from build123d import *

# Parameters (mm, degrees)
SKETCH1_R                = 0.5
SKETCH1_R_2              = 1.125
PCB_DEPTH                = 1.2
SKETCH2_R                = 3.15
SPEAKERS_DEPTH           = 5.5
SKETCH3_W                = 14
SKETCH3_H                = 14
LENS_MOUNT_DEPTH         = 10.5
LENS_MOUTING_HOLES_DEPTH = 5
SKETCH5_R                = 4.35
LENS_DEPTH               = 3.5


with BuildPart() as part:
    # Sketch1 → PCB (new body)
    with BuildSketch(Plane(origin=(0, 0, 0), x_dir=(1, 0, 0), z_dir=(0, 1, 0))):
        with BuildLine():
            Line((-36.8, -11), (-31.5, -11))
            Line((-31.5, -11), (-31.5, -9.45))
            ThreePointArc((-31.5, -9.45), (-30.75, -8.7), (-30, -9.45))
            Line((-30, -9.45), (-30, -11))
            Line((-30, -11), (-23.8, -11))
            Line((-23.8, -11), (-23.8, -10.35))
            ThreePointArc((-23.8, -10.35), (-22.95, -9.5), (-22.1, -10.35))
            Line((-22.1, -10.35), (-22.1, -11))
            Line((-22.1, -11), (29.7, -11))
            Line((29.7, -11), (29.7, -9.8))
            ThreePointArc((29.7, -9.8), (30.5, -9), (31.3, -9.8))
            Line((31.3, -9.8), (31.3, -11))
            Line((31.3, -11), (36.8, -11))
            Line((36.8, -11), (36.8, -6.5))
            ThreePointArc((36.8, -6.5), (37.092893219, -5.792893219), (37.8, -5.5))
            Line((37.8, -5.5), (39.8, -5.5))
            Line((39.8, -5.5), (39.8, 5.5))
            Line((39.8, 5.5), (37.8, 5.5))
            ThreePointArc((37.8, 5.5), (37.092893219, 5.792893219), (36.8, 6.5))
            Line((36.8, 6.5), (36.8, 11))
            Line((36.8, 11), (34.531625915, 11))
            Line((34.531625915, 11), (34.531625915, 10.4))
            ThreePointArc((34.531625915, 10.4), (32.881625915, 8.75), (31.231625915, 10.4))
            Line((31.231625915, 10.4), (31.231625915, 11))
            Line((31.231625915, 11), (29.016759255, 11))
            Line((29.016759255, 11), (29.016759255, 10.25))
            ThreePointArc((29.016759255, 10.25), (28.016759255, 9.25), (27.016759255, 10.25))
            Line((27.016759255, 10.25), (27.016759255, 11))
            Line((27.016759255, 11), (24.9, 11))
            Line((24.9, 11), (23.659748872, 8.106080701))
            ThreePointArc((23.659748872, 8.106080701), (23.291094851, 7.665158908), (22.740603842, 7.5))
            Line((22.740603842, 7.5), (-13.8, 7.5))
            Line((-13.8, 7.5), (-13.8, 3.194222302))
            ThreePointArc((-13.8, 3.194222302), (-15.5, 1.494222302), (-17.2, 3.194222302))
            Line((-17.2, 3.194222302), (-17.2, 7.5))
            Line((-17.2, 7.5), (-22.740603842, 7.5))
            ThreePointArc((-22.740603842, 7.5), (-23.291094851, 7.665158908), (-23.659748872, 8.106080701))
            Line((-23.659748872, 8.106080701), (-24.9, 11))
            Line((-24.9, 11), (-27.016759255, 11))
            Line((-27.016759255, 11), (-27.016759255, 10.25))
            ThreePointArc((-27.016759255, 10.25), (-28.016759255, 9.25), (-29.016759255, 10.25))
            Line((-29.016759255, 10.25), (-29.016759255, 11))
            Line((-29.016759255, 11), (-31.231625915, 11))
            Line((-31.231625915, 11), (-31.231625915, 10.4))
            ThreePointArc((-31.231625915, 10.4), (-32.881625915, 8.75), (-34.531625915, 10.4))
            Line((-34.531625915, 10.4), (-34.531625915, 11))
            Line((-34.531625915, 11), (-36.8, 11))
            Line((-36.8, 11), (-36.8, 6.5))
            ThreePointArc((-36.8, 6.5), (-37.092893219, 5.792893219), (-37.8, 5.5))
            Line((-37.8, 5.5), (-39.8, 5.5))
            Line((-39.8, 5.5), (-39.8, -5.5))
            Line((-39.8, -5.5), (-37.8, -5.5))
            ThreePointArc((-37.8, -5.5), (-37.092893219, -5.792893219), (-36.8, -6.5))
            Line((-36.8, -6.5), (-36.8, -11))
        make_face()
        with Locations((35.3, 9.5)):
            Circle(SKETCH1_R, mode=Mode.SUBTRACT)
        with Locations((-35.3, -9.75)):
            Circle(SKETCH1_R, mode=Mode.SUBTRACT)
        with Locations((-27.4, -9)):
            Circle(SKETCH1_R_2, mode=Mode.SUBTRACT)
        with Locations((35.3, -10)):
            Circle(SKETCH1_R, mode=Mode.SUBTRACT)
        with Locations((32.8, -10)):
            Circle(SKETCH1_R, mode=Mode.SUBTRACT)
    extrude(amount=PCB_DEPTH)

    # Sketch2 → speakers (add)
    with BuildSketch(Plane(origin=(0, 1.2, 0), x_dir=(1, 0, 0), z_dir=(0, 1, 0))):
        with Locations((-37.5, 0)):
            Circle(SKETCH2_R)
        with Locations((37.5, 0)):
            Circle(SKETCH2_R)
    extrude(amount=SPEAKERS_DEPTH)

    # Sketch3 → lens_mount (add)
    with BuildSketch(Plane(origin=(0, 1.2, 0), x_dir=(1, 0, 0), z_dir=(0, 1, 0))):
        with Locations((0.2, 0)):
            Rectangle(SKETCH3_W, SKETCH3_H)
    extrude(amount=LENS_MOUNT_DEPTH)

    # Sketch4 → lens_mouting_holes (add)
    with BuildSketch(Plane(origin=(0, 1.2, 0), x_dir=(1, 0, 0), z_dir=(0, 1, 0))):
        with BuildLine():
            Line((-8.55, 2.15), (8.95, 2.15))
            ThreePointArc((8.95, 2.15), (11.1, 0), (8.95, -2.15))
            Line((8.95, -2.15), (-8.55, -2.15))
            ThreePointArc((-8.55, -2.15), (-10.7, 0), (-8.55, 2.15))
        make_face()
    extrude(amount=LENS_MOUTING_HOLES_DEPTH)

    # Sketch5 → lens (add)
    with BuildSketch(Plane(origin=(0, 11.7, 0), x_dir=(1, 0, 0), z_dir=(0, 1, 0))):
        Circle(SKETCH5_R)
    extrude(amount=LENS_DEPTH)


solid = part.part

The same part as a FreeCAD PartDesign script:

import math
import FreeCAD as App
import Part
import Sketcher

V = App.Vector

doc = App.newDocument("Part")
body = doc.addObject("PartDesign::Body", "Body")

# Sketch on XZ plane
sketch1 = body.newObject("Sketcher::SketchObject", "Sketch")
sketch1.AttachmentSupport = (doc.getObject("XZ_Plane"), [""])
sketch1.MapMode = "FlatFace"
sketch1.addGeometry([
    Part.LineSegment(V(-36.8, 11, 0), V(-31.5, 11, 0)),  # 0
    Part.LineSegment(V(-31.5, 11, 0), V(-31.5, 9.45, 0)),  # 1
    Part.ArcOfCircle(Part.Circle(V(-30.75, 9.45, 0), V(0, 0, 1), 0.75), math.radians(180), math.radians(360)),  # 2
    Part.LineSegment(V(-30, 9.45, 0), V(-30, 11, 0)),  # 3
    Part.LineSegment(V(-30, 11, 0), V(-23.8, 11, 0)),  # 4
    Part.LineSegment(V(-23.8, 11, 0), V(-23.8, 10.35, 0)),  # 5
    Part.ArcOfCircle(Part.Circle(V(-22.95, 10.35, 0), V(0, 0, 1), 0.85), math.radians(180), math.radians(360)),  # 6
    Part.LineSegment(V(-22.1, 10.35, 0), V(-22.1, 11, 0)),  # 7
    Part.LineSegment(V(-22.1, 11, 0), V(29.7, 11, 0)),  # 8
    Part.LineSegment(V(29.7, 11, 0), V(29.7, 9.8, 0)),  # 9
    Part.ArcOfCircle(Part.Circle(V(30.5, 9.8, 0), V(0, 0, 1), 0.8), math.radians(180), math.radians(360)),  # 10
    Part.LineSegment(V(31.3, 9.8, 0), V(31.3, 11, 0)),  # 11
    Part.LineSegment(V(31.3, 11, 0), V(36.8, 11, 0)),  # 12
    Part.LineSegment(V(36.8, 11, 0), V(36.8, 6.5, 0)),  # 13
    Part.ArcOfCircle(Part.Circle(V(37.8, 6.5, 0), V(0, 0, 1), 1), math.radians(-180), math.radians(-90)),  # 14
    Part.LineSegment(V(37.8, 5.5, 0), V(39.8, 5.5, 0)),  # 15
    Part.LineSegment(V(39.8, 5.5, 0), V(39.8, -5.5, 0)),  # 16
    Part.LineSegment(V(39.8, -5.5, 0), V(37.8, -5.5, 0)),  # 17
    Part.ArcOfCircle(Part.Circle(V(37.8, -6.5, 0), V(0, 0, 1), 1), math.radians(90), math.radians(180)),  # 18
    Part.LineSegment(V(36.8, -6.5, 0), V(36.8, -11, 0)),  # 19
    Part.LineSegment(V(36.8, -11, 0), V(34.531626, -11, 0)),  # 20
    Part.LineSegment(V(34.531626, -11, 0), V(34.531626, -10.4, 0)),  # 21
    Part.ArcOfCircle(Part.Circle(V(32.881626, -10.4, 0), V(0, 0, 1), 1.65), math.radians(0), math.radians(180)),  # 22
    Part.LineSegment(V(31.231626, -10.4, 0), V(31.231626, -11, 0)),  # 23
    Part.LineSegment(V(31.231626, -11, 0), V(29.016759, -11, 0)),  # 24
    Part.LineSegment(V(29.016759, -11, 0), V(29.016759, -10.25, 0)),  # 25
    Part.ArcOfCircle(Part.Circle(V(28.016759, -10.25, 0), V(0, 0, 1), 1), math.radians(0), math.radians(180)),  # 26
    Part.LineSegment(V(27.016759, -10.25, 0), V(27.016759, -11, 0)),  # 27
    Part.LineSegment(V(27.016759, -11, 0), V(24.9, -11, 0)),  # 28
    Part.LineSegment(V(24.9, -11, 0), V(23.659749, -8.106081, 0)),  # 29
    Part.ArcOfCircle(Part.Circle(V(22.740604, -8.5, 0), V(0, 0, 1), 1), math.radians(23.198591), math.radians(90)),  # 30
    Part.LineSegment(V(22.740604, -7.5, 0), V(-13.8, -7.5, 0)),  # 31
    Part.LineSegment(V(-13.8, -7.5, 0), V(-13.8, -3.194222, 0)),  # 32
    Part.ArcOfCircle(Part.Circle(V(-15.5, -3.194222, 0), V(0, 0, 1), 1.7), math.radians(0), math.radians(180)),  # 33
    Part.LineSegment(V(-17.2, -3.194222, 0), V(-17.2, -7.5, 0)),  # 34
    Part.LineSegment(V(-17.2, -7.5, 0), V(-22.740604, -7.5, 0)),  # 35
    Part.ArcOfCircle(Part.Circle(V(-22.740604, -8.5, 0), V(0, 0, 1), 1), math.radians(90), math.radians(156.801409)),  # 36
    Part.LineSegment(V(-23.659749, -8.106081, 0), V(-24.9, -11, 0)),  # 37
    Part.LineSegment(V(-24.9, -11, 0), V(-27.016759, -11, 0)),  # 38
    Part.LineSegment(V(-27.016759, -11, 0), V(-27.016759, -10.25, 0)),  # 39
    Part.ArcOfCircle(Part.Circle(V(-28.016759, -10.25, 0), V(0, 0, 1), 1), math.radians(0), math.radians(180)),  # 40
    Part.LineSegment(V(-29.016759, -10.25, 0), V(-29.016759, -11, 0)),  # 41
    Part.LineSegment(V(-29.016759, -11, 0), V(-31.231626, -11, 0)),  # 42
    Part.LineSegment(V(-31.231626, -11, 0), V(-31.231626, -10.4, 0)),  # 43
    Part.ArcOfCircle(Part.Circle(V(-32.881626, -10.4, 0), V(0, 0, 1), 1.65), math.radians(0), math.radians(180)),  # 44
    Part.LineSegment(V(-34.531626, -10.4, 0), V(-34.531626, -11, 0)),  # 45
    Part.LineSegment(V(-34.531626, -11, 0), V(-36.8, -11, 0)),  # 46
    Part.LineSegment(V(-36.8, -11, 0), V(-36.8, -6.5, 0)),  # 47
    Part.ArcOfCircle(Part.Circle(V(-37.8, -6.5, 0), V(0, 0, 1), 1), math.radians(0), math.radians(90)),  # 48
    Part.LineSegment(V(-37.8, -5.5, 0), V(-39.8, -5.5, 0)),  # 49
    Part.LineSegment(V(-39.8, -5.5, 0), V(-39.8, 5.5, 0)),  # 50
    Part.LineSegment(V(-39.8, 5.5, 0), V(-37.8, 5.5, 0)),  # 51
    Part.ArcOfCircle(Part.Circle(V(-37.8, 6.5, 0), V(0, 0, 1), 1), math.radians(-90), math.radians(0)),  # 52
    Part.LineSegment(V(-36.8, 6.5, 0), V(-36.8, 11, 0)),  # 53
    Part.Circle(V(-35.3, 9.75, 0), V(0, 0, 1), 0.5),  # 54
    Part.Circle(V(-27.4, 9, 0), V(0, 0, 1), 1.125),  # 55
    Part.Circle(V(32.8, 10, 0), V(0, 0, 1), 0.5),  # 56
    Part.Circle(V(35.3, 10, 0), V(0, 0, 1), 0.5),  # 57
    Part.Circle(V(35.3, -9.5, 0), V(0, 0, 1), 0.5),  # 58
], False)
sketch1.addConstraint([
    Sketcher.Constraint("Coincident", 0, 2, 1, 1),
    Sketcher.Constraint("Tangent", 1, 2, 2, 1),
    Sketcher.Constraint("Tangent", 2, 2, 3, 1),
    Sketcher.Constraint("Coincident", 3, 2, 4, 1),
    Sketcher.Constraint("Coincident", 4, 2, 5, 1),
    Sketcher.Constraint("Tangent", 5, 2, 6, 1),
    Sketcher.Constraint("Tangent", 6, 2, 7, 1),
    Sketcher.Constraint("Coincident", 7, 2, 8, 1),
    Sketcher.Constraint("Coincident", 8, 2, 9, 1),
    Sketcher.Constraint("Tangent", 9, 2, 10, 1),
    Sketcher.Constraint("Tangent", 10, 2, 11, 1),
    Sketcher.Constraint("Coincident", 11, 2, 12, 1),
    Sketcher.Constraint("Coincident", 12, 2, 13, 1),
    Sketcher.Constraint("Tangent", 13, 2, 14, 1),
    Sketcher.Constraint("Tangent", 14, 2, 15, 1),
    Sketcher.Constraint("Coincident", 15, 2, 16, 1),
    Sketcher.Constraint("Coincident", 16, 2, 17, 1),
    Sketcher.Constraint("Tangent", 17, 2, 18, 1),
    Sketcher.Constraint("Tangent", 18, 2, 19, 1),
    Sketcher.Constraint("Coincident", 19, 2, 20, 1),
    Sketcher.Constraint("Coincident", 20, 2, 21, 1),
    Sketcher.Constraint("Tangent", 21, 2, 22, 1),
    Sketcher.Constraint("Tangent", 22, 2, 23, 1),
    Sketcher.Constraint("Coincident", 23, 2, 24, 1),
    Sketcher.Constraint("Coincident", 24, 2, 25, 1),
    Sketcher.Constraint("Tangent", 25, 2, 26, 1),
    Sketcher.Constraint("Tangent", 26, 2, 27, 1),
    Sketcher.Constraint("Coincident", 27, 2, 28, 1),
    Sketcher.Constraint("Coincident", 28, 2, 29, 1),
    Sketcher.Constraint("Tangent", 29, 2, 30, 1),
    Sketcher.Constraint("Tangent", 30, 2, 31, 1),
    Sketcher.Constraint("Coincident", 31, 2, 32, 1),
    Sketcher.Constraint("Tangent", 32, 2, 33, 1),
    Sketcher.Constraint("Tangent", 33, 2, 34, 1),
    Sketcher.Constraint("Coincident", 34, 2, 35, 1),
    Sketcher.Constraint("Tangent", 35, 2, 36, 1),
    Sketcher.Constraint("Tangent", 36, 2, 37, 1),
    Sketcher.Constraint("Coincident", 37, 2, 38, 1),
    Sketcher.Constraint("Coincident", 38, 2, 39, 1),
    Sketcher.Constraint("Tangent", 39, 2, 40, 1),
    Sketcher.Constraint("Tangent", 40, 2, 41, 1),
    Sketcher.Constraint("Coincident", 41, 2, 42, 1),
    Sketcher.Constraint("Coincident", 42, 2, 43, 1),
    Sketcher.Constraint("Tangent", 43, 2, 44, 1),
    Sketcher.Constraint("Tangent", 44, 2, 45, 1),
    Sketcher.Constraint("Coincident", 45, 2, 46, 1),
    Sketcher.Constraint("Coincident", 46, 2, 47, 1),
    Sketcher.Constraint("Tangent", 47, 2, 48, 1),
    Sketcher.Constraint("Tangent", 48, 2, 49, 1),
    Sketcher.Constraint("Coincident", 49, 2, 50, 1),
    Sketcher.Constraint("Coincident", 50, 2, 51, 1),
    Sketcher.Constraint("Tangent", 51, 2, 52, 1),
    Sketcher.Constraint("Tangent", 52, 2, 53, 1),
    Sketcher.Constraint("Coincident", 53, 2, 0, 1),
    Sketcher.Constraint("Horizontal", 0),
    Sketcher.Constraint("Vertical", 1),
    Sketcher.Constraint("Vertical", 3),
    Sketcher.Constraint("Horizontal", 4),
    Sketcher.Constraint("Vertical", 5),
    Sketcher.Constraint("Vertical", 7),
    Sketcher.Constraint("Horizontal", 8),
    Sketcher.Constraint("Vertical", 9),
    Sketcher.Constraint("Vertical", 11),
    Sketcher.Constraint("Horizontal", 12),
    Sketcher.Constraint("Vertical", 13),
    Sketcher.Constraint("Horizontal", 15),
    Sketcher.Constraint("Vertical", 16),
    Sketcher.Constraint("Horizontal", 17),
    Sketcher.Constraint("Vertical", 19),
    Sketcher.Constraint("Horizontal", 20),
    Sketcher.Constraint("Vertical", 21),
    Sketcher.Constraint("Vertical", 23),
    Sketcher.Constraint("Horizontal", 24),
    Sketcher.Constraint("Vertical", 25),
    Sketcher.Constraint("Vertical", 27),
    Sketcher.Constraint("Horizontal", 28),
    Sketcher.Constraint("Horizontal", 31),
    Sketcher.Constraint("Vertical", 32),
    Sketcher.Constraint("Vertical", 34),
    Sketcher.Constraint("Horizontal", 35),
    Sketcher.Constraint("Horizontal", 38),
    Sketcher.Constraint("Vertical", 39),
    Sketcher.Constraint("Vertical", 41),
    Sketcher.Constraint("Horizontal", 42),
    Sketcher.Constraint("Vertical", 43),
    Sketcher.Constraint("Vertical", 45),
    Sketcher.Constraint("Horizontal", 46),
    Sketcher.Constraint("Vertical", 47),
    Sketcher.Constraint("Horizontal", 49),
    Sketcher.Constraint("Vertical", 50),
    Sketcher.Constraint("Horizontal", 51),
    Sketcher.Constraint("Vertical", 53),
    Sketcher.Constraint("Equal", 14, 18),
    Sketcher.Constraint("Equal", 18, 26),
    Sketcher.Constraint("Equal", 26, 30),
    Sketcher.Constraint("Equal", 30, 36),
    Sketcher.Constraint("Equal", 36, 40),
    Sketcher.Constraint("Equal", 22, 44),
    Sketcher.Constraint("Equal", 40, 48),
    Sketcher.Constraint("Equal", 48, 52),
    Sketcher.Constraint("Equal", 54, 56),
    Sketcher.Constraint("Equal", 56, 57),
    Sketcher.Constraint("Equal", 57, 58),
    Sketcher.Constraint("Symmetric", 14, 3, 48, 3, -1, 1),
    Sketcher.Constraint("Symmetric", 18, 3, 52, 3, -1, 1),
    Sketcher.Constraint("Symmetric", 30, 3, 36, 3, -2),
    Sketcher.Constraint("Symmetric", 26, 3, 40, 3, -2),
    Sketcher.Constraint("Symmetric", 22, 3, 44, 3, -2),
    Sketcher.Constraint("Symmetric", 18, 3, 48, 3, -2),
    Sketcher.Constraint("Symmetric", 28, 2, 37, 2, -2),
    Sketcher.Constraint("Horizontal", 56, 3, 57, 3),
    Sketcher.Constraint("Horizontal", 0, 2, 3, 2),
    Sketcher.Constraint("Horizontal", 4, 2, 7, 2),
    Sketcher.Constraint("Horizontal", 8, 2, 11, 2),
    Sketcher.Constraint("Horizontal", 20, 2, 23, 2),
    Sketcher.Constraint("Horizontal", 24, 2, 27, 2),
    Sketcher.Constraint("Horizontal", 38, 2, 41, 2),
    Sketcher.Constraint("Horizontal", 42, 2, 45, 2),
    Sketcher.Constraint("Vertical", 57, 3, 58, 3),
    Sketcher.Constraint("Equal", 17, 49),
    Sketcher.Constraint("Equal", 13, 19),
    Sketcher.Constraint("Diameter", 54, 1.0),
    Sketcher.Constraint("Radius", 14, 1.0),
    Sketcher.Constraint("Radius", 10, 0.8),
    Sketcher.Constraint("Radius", 33, 1.7),
    Sketcher.Constraint("Diameter", 55, 2.25),
    Sketcher.Constraint("DistanceX", 15, 1, 15, 2, 2.0),
    Sketcher.Constraint("DistanceY", 16, 2, 16, 1, 11.0),
    Sketcher.Constraint("Radius", 2, 0.75),
    Sketcher.Constraint("Radius", 6, 0.85),
    Sketcher.Constraint("Radius", 22, 1.65),
    Sketcher.Constraint("DistanceX", 0, 1, 0, 2, 5.3),
    Sketcher.Constraint("DistanceX", 4, 1, 4, 2, 6.2),
    Sketcher.Constraint("DistanceX", 8, 1, 8, 2, 51.8),
    Sketcher.Constraint("DistanceX", 12, 1, 12, 2, 5.5),
    Sketcher.Constraint("DistanceY", 9, 2, 9, 1, 1.2),
    Sketcher.Constraint("DistanceY", 13, 2, 13, 1, 4.5),
    Sketcher.Constraint("DistanceY", 21, 1, 21, 2, 0.6),
    Sketcher.Constraint("DistanceY", -1, 1, 55, 3, 9.0),
    Sketcher.Constraint("DistanceY", -1, 1, 56, 3, 10.0),
    Sketcher.Constraint("DistanceY", 1, 2, 1, 1, 1.55),
    Sketcher.Constraint("DistanceY", 5, 2, 5, 1, 0.65),
    Sketcher.Constraint("DistanceY", 25, 1, 25, 2, 0.75),
    Sketcher.Constraint("DistanceY", 30, 3, -1, 1, 8.5),
    Sketcher.Constraint("DistanceX", 33, 3, -1, 1, 15.5),
    Sketcher.Constraint("DistanceX", 54, 3, -1, 1, 35.3),
    Sketcher.Constraint("DistanceX", 55, 3, -1, 1, 27.4),
    Sketcher.Constraint("DistanceX", -1, 1, 56, 3, 32.8),
    Sketcher.Constraint("DistanceX", -1, 1, 57, 3, 35.3),
    Sketcher.Constraint("DistanceY", 58, 3, -1, 1, 9.5),
    Sketcher.Constraint("DistanceX", -1, 1, 28, 2, 24.9),
    Sketcher.Constraint("DistanceY", -1, 1, 54, 3, 9.75),
    Sketcher.Constraint("DistanceX", 28, 2, 28, 1, 2.116759),
    Sketcher.Constraint("Distance", 29, 3.14849),
    Sketcher.Constraint("DistanceX", 20, 2, 20, 1, 2.268374),
    Sketcher.Constraint("DistanceY", 32, 1, 32, 2, 4.305778),
])
pad1 = body.newObject("PartDesign::Pad", "Pad")
pad1.Profile = sketch1
pad1.Length = 1.2
pad1.Reversed = True

# Sketch on XZ plane
sketch2 = body.newObject("Sketcher::SketchObject", "Sketch001")
sketch2.AttachmentSupport = (doc.getObject("XZ_Plane"), [""])
sketch2.MapMode = "FlatFace"
sketch2.AttachmentOffset = App.Placement(V(0, 0, -1.2), App.Rotation())
sketch2.addGeometry([
    Part.Circle(V(-37.5, 0, 0), V(0, 0, 1), 3.15),
    Part.Circle(V(37.5, 0, 0), V(0, 0, 1), 3.15),
], False)
sketch2.addConstraint([
    Sketcher.Constraint("Equal", 0, 1),
    Sketcher.Constraint("Symmetric", 0, 3, 1, 3, -1, 1),
    Sketcher.Constraint("PointOnObject", 0, 3, -1),
    Sketcher.Constraint("Diameter", 0, 6.3),
    Sketcher.Constraint("DistanceX", 0, 3, 1, 3, 75.0),
])
pad2 = body.newObject("PartDesign::Pad", "Pad001")
pad2.Profile = sketch2
pad2.Length = 5.5
pad2.Reversed = True

# Sketch on XZ plane
sketch3 = body.newObject("Sketcher::SketchObject", "Sketch002")
sketch3.AttachmentSupport = (doc.getObject("XZ_Plane"), [""])
sketch3.MapMode = "FlatFace"
sketch3.AttachmentOffset = App.Placement(V(0, 0, -1.2), App.Rotation())
sketch3.addGeometry([
    Part.LineSegment(V(-6.8, -7, 0), V(-6.8, 7, 0)),
    Part.LineSegment(V(-6.8, 7, 0), V(7.2, 7, 0)),
    Part.LineSegment(V(7.2, 7, 0), V(7.2, -7, 0)),
    Part.LineSegment(V(7.2, -7, 0), V(-6.8, -7, 0)),
], False)
sketch3.addConstraint([
    Sketcher.Constraint("Coincident", 0, 2, 1, 1),
    Sketcher.Constraint("Coincident", 1, 2, 2, 1),
    Sketcher.Constraint("Coincident", 2, 2, 3, 1),
    Sketcher.Constraint("Coincident", 3, 2, 0, 1),
    Sketcher.Constraint("Vertical", 0),
    Sketcher.Constraint("Horizontal", 1),
    Sketcher.Constraint("Vertical", 2),
    Sketcher.Constraint("Horizontal", 3),
    Sketcher.Constraint("Equal", 3, 0),
    Sketcher.Constraint("DistanceX", 1, 1, 1, 2, 14.0),
    Sketcher.Constraint("DistanceY", -1, 1, 0, 2, 7.0),
    Sketcher.Constraint("DistanceX", 0, 2, -1, 1, 6.8),
])
pad3 = body.newObject("PartDesign::Pad", "Pad002")
pad3.Profile = sketch3
pad3.Length = 10.5
pad3.Reversed = True

# Sketch on XZ plane
sketch4 = body.newObject("Sketcher::SketchObject", "Sketch003")
sketch4.AttachmentSupport = (doc.getObject("XZ_Plane"), [""])
sketch4.MapMode = "FlatFace"
sketch4.AttachmentOffset = App.Placement(V(0, 0, -1.2), App.Rotation())
sketch4.addGeometry([
    Part.LineSegment(V(8.95, -2.15, 0), V(-8.55, -2.15, 0)),
    Part.ArcOfCircle(Part.Circle(V(-8.55, 0, 0), V(0, 0, 1), 2.15), math.radians(90), math.radians(270)),
    Part.LineSegment(V(-8.55, 2.15, 0), V(8.95, 2.15, 0)),
    Part.ArcOfCircle(Part.Circle(V(8.95, 0, 0), V(0, 0, 1), 2.15), math.radians(-90), math.radians(90)),
], False)
sketch4.addConstraint([
    Sketcher.Constraint("Tangent", 0, 2, 1, 2),
    Sketcher.Constraint("Tangent", 1, 1, 2, 1),
    Sketcher.Constraint("Tangent", 2, 2, 3, 2),
    Sketcher.Constraint("Tangent", 3, 1, 0, 1),
    Sketcher.Constraint("Horizontal", 0),
    Sketcher.Constraint("Horizontal", 2),
    Sketcher.Constraint("PointOnObject", 1, 3, -1),
    Sketcher.Constraint("Radius", 1, 2.15),
    Sketcher.Constraint("DistanceX", 0, 2, 0, 1, 17.5),
    Sketcher.Constraint("DistanceX", 1, 3, -1, 1, 8.55),
])
pad4 = body.newObject("PartDesign::Pad", "Pad003")
pad4.Profile = sketch4
pad4.Length = 5
pad4.Reversed = True

# Sketch on XZ plane
sketch5 = body.newObject("Sketcher::SketchObject", "Sketch004")
sketch5.AttachmentSupport = (doc.getObject("XZ_Plane"), [""])
sketch5.MapMode = "FlatFace"
sketch5.AttachmentOffset = App.Placement(V(0, 0, -11.7), App.Rotation())
sketch5.addGeometry(Part.Circle(V(0, 0, 0), V(0, 0, 1), 4.35), False)
sketch5.addConstraint([
    Sketcher.Constraint("Coincident", 0, 3, -1, 1),
    Sketcher.Constraint("Diameter", 0, 8.7),
])
pad5 = body.newObject("PartDesign::Pad", "Pad004")
pad5.Profile = sketch5
pad5.Length = 3.5
pad5.Reversed = True

doc.recompute()
